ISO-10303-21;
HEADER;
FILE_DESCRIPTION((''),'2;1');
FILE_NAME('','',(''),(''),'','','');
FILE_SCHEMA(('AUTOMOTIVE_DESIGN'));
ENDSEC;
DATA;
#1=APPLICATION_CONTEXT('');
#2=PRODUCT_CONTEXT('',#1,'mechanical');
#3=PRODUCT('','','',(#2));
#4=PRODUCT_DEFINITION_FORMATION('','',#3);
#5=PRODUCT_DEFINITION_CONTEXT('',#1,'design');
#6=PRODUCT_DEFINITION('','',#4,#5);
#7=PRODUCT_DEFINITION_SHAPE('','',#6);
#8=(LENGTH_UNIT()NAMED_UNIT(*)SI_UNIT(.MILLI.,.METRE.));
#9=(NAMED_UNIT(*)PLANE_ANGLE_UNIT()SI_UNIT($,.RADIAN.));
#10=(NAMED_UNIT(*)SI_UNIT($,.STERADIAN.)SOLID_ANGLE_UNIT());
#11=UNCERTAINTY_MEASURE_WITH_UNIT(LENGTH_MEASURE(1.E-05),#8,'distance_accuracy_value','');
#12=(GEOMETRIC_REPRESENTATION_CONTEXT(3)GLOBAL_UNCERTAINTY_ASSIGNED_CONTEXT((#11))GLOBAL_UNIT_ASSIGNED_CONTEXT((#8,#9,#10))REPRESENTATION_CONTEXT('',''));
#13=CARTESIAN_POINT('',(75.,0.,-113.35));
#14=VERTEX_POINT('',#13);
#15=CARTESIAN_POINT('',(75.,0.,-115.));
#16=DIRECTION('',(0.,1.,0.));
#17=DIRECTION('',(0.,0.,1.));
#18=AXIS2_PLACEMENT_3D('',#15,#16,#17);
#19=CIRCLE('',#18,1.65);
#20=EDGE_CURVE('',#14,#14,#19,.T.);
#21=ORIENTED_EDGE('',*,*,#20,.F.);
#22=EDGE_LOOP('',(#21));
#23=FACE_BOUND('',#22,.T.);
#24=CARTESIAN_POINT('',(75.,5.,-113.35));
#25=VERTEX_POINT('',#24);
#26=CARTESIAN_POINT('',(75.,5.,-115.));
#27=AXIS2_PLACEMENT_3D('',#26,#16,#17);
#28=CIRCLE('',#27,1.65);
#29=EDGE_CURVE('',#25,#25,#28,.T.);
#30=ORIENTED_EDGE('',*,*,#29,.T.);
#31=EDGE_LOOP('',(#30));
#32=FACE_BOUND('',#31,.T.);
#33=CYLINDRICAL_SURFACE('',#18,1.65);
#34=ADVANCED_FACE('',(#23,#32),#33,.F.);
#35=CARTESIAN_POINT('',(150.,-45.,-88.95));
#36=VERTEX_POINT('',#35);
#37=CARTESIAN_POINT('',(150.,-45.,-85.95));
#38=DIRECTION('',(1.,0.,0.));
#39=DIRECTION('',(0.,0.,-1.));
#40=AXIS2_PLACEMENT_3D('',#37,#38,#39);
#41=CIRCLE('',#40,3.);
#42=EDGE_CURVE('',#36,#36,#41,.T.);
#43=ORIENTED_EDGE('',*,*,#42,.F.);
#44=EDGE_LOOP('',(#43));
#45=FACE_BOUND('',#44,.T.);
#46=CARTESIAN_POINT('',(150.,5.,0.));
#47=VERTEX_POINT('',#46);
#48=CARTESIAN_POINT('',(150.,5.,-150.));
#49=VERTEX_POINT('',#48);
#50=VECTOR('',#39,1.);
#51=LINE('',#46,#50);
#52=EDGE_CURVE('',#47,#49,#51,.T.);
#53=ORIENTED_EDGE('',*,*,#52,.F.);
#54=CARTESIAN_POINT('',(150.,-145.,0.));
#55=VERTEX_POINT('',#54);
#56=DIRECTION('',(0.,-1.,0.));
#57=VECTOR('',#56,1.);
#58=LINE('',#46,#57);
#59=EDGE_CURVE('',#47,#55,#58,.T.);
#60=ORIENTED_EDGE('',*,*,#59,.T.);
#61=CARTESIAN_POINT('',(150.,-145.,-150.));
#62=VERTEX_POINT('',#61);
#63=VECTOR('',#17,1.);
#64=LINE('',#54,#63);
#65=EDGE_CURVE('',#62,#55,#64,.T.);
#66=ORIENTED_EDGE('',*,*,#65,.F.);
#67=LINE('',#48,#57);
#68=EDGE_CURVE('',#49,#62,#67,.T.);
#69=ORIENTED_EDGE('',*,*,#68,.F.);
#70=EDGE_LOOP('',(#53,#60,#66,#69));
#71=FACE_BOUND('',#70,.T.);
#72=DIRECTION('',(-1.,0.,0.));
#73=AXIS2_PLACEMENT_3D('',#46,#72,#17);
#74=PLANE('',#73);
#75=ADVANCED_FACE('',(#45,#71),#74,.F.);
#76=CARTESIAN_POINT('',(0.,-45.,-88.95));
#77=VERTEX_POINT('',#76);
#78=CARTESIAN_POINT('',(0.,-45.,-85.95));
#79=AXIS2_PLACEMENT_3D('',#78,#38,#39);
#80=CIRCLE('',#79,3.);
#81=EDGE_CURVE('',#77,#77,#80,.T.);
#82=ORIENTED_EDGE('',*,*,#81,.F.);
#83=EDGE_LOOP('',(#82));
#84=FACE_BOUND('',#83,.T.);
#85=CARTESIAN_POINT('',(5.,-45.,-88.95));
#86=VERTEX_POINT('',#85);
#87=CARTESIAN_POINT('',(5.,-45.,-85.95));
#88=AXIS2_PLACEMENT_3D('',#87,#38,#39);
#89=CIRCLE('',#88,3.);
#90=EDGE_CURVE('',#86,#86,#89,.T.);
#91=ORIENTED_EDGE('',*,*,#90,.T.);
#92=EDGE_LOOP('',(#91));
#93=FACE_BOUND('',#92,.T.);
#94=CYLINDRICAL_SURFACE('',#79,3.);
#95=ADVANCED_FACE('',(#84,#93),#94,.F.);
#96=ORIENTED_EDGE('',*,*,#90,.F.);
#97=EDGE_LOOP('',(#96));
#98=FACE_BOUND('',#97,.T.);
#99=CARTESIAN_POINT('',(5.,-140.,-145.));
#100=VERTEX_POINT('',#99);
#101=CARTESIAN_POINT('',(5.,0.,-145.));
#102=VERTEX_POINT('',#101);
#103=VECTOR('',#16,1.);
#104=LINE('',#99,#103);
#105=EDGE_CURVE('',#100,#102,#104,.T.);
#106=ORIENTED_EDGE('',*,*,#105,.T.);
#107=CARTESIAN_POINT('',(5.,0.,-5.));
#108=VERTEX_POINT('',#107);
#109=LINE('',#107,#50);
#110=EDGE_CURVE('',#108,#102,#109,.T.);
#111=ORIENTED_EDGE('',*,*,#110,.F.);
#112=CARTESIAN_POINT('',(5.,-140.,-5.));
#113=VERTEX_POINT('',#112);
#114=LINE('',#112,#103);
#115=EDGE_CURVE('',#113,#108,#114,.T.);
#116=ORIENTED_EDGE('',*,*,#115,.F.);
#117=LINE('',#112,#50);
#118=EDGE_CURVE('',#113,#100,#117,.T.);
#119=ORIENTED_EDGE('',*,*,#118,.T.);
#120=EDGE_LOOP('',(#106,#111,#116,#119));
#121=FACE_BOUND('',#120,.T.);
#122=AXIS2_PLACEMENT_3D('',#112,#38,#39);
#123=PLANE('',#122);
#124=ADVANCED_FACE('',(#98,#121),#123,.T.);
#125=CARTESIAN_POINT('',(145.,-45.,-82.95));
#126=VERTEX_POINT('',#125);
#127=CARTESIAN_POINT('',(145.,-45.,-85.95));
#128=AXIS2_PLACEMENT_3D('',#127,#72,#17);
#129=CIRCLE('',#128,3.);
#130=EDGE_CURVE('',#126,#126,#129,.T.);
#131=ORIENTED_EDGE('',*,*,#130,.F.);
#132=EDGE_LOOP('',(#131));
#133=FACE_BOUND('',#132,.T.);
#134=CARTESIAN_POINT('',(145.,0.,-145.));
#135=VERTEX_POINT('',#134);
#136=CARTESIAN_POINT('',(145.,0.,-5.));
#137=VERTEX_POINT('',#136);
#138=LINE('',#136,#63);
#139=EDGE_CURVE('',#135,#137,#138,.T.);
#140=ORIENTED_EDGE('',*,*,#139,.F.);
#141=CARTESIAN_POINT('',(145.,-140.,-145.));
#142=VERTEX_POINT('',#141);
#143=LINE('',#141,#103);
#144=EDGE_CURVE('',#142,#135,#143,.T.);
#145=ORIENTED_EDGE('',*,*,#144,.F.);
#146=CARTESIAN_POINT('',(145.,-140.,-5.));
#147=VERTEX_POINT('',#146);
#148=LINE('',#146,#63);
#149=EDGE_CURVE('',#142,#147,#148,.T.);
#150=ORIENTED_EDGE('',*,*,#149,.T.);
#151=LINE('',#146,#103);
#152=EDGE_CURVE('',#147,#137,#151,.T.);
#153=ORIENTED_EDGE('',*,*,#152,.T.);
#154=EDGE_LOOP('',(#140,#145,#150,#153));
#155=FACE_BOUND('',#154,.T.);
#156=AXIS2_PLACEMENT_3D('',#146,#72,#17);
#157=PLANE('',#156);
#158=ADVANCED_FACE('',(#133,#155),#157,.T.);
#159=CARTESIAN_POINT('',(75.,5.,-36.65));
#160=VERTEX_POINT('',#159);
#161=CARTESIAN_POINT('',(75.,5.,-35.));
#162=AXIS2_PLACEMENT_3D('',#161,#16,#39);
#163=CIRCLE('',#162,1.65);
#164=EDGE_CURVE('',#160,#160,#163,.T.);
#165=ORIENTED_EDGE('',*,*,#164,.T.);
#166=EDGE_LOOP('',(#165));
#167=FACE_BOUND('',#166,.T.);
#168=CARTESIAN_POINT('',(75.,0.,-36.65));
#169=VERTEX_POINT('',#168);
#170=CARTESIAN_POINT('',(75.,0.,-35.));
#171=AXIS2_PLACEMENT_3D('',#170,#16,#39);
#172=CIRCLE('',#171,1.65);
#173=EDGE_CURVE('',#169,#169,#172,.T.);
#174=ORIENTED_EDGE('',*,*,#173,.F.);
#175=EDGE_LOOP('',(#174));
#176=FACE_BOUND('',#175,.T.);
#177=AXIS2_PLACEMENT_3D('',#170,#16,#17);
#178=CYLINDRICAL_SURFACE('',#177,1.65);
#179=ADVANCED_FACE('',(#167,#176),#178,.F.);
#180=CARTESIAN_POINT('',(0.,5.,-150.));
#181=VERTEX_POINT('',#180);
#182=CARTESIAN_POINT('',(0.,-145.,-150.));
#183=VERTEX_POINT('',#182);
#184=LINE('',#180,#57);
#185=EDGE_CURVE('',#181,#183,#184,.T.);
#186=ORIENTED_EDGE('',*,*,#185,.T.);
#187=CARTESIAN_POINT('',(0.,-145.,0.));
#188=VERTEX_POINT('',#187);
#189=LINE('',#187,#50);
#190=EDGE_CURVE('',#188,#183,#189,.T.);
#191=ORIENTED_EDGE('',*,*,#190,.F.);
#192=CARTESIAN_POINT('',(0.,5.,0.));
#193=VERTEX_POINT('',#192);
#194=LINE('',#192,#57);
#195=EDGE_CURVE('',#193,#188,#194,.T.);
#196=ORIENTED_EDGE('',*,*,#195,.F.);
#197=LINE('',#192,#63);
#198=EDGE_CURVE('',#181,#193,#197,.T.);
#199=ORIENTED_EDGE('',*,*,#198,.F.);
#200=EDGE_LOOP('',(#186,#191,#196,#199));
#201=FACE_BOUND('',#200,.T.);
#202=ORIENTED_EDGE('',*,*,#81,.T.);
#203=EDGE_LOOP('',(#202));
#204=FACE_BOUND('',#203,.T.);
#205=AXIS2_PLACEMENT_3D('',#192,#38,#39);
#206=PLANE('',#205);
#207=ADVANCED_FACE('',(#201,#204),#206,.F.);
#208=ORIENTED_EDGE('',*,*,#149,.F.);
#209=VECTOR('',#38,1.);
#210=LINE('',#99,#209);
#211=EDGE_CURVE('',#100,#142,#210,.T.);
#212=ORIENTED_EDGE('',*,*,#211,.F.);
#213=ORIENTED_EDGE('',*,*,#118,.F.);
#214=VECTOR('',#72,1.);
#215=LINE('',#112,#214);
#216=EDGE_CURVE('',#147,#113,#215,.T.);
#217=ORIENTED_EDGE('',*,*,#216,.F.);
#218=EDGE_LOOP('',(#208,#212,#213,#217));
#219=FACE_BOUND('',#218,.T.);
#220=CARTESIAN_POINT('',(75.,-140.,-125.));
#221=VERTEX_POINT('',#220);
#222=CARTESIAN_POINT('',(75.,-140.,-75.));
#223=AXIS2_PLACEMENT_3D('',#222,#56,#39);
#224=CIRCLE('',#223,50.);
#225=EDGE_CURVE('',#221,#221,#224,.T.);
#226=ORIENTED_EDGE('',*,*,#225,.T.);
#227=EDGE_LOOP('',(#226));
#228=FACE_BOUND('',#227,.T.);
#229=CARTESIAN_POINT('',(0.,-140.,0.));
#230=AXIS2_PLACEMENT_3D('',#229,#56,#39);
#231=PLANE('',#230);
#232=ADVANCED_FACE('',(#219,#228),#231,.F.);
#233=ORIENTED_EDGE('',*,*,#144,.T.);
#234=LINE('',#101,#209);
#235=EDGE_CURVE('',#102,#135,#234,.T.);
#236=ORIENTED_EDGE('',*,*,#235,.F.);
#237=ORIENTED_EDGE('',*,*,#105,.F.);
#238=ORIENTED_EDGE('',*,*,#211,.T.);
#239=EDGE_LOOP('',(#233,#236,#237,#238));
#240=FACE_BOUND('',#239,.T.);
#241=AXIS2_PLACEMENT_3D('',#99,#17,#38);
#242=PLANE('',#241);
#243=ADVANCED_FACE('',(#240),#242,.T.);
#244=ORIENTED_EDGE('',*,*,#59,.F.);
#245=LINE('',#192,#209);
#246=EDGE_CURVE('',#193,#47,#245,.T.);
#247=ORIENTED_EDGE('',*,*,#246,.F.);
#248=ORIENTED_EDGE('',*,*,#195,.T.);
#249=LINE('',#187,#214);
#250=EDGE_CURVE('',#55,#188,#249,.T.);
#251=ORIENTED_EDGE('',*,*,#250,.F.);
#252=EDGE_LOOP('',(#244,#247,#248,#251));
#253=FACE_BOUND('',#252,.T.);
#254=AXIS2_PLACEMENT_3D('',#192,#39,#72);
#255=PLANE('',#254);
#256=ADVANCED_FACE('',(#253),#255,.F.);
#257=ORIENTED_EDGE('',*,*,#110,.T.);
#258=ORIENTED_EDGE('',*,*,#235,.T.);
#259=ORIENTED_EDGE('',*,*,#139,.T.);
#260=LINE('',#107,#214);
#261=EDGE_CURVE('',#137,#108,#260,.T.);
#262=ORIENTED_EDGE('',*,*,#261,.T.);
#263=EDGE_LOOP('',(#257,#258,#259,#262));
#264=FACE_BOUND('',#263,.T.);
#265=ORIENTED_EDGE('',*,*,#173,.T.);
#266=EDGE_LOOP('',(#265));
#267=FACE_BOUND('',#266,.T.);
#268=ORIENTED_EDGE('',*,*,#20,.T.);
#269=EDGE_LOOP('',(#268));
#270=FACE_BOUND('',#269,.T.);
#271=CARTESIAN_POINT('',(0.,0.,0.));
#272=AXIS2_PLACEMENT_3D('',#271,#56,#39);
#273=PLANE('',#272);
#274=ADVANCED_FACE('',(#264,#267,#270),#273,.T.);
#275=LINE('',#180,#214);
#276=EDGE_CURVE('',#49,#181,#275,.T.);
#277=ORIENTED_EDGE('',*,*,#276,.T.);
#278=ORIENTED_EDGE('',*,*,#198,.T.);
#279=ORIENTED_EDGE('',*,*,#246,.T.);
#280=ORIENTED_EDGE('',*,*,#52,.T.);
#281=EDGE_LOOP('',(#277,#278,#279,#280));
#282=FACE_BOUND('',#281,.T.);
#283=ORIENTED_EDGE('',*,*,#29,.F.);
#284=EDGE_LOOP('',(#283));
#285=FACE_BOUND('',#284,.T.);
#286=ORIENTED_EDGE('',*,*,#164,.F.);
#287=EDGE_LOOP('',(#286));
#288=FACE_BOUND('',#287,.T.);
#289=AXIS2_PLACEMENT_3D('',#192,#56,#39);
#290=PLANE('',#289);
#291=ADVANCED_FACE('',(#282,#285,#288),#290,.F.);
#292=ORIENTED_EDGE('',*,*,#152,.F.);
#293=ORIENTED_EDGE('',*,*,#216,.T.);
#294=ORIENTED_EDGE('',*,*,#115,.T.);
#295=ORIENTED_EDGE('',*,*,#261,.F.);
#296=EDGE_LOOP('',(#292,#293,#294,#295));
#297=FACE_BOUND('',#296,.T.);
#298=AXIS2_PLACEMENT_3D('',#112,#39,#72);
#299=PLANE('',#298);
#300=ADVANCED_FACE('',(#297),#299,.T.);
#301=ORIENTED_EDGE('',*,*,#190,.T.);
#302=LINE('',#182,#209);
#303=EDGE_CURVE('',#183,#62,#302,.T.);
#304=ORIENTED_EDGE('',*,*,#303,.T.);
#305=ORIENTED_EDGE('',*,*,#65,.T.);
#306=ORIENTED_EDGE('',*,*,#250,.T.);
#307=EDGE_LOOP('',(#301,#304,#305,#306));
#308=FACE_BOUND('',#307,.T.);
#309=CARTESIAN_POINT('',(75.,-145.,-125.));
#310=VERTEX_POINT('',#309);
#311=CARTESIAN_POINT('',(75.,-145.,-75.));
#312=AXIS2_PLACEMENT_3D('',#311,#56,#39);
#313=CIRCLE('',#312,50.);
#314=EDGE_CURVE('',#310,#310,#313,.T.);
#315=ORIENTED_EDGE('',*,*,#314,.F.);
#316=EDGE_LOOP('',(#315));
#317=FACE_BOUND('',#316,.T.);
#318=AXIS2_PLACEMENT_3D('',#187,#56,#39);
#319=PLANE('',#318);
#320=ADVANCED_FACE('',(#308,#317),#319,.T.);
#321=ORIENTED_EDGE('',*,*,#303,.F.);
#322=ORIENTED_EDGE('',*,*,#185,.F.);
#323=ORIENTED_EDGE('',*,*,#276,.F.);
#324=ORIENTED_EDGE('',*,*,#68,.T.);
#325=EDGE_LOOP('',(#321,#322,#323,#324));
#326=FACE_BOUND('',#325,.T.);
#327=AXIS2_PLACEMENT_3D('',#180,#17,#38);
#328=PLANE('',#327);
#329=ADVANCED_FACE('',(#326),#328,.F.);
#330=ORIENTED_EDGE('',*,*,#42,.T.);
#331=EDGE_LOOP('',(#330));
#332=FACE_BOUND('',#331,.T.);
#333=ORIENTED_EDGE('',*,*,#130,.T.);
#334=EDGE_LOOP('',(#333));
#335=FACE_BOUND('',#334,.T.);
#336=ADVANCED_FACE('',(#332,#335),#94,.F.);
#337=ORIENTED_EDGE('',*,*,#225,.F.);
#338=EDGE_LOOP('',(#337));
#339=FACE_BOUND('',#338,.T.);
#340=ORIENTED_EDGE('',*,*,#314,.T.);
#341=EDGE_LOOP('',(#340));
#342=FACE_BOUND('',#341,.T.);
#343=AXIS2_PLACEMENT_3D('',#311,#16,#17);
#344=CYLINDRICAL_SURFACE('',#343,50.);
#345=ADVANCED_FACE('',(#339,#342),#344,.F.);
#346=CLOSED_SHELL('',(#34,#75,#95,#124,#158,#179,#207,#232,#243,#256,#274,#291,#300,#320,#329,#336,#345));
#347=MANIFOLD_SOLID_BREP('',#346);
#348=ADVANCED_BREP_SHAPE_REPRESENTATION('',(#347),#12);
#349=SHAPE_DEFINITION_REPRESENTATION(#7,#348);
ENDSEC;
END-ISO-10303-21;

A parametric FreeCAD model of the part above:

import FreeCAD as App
import Part
import Sketcher

V = App.Vector
Q = App.Units.Quantity

doc = App.newDocument("Part")
body = doc.addObject("PartDesign::Body", "Body")

sketch1 = body.newObject("Sketcher::SketchObject", "Sketch")
sketch1.AttachmentSupport = (doc.getObject("XZ_Plane"), [""])
sketch1.MapMode = "FlatFace"
sketch1.addGeometry([
    Part.LineSegment(V(0, -150, 0), V(0, 0, 0)),
    Part.LineSegment(V(0, 0, 0), V(150, 0, 0)),
    Part.LineSegment(V(150, 0, 0), V(150, -150, 0)),
    Part.LineSegment(V(150, -150, 0), V(0, -150, 0)),
], False)
sketch1.addConstraint([
    Sketcher.Constraint("Coincident", 0, 2, 1, 1),
    Sketcher.Constraint("Coincident", 1, 2, 2, 1),
    Sketcher.Constraint("Coincident", 2, 2, 3, 1),
    Sketcher.Constraint("Coincident", 3, 2, 0, 1),
    Sketcher.Constraint("Vertical", 0),
    Sketcher.Constraint("Horizontal", 1),
    Sketcher.Constraint("Vertical", 2),
    Sketcher.Constraint("Horizontal", 3),
    Sketcher.Constraint("Coincident", 0, 2, -1, 1),
    Sketcher.Constraint("Equal", 3, 0),
    Sketcher.Constraint("DistanceX", 1, 1, 1, 2, Q("150 mm")),
])
pad1 = body.newObject("PartDesign::Pad", "Pad")
pad1.Profile = sketch1
pad1.Length = 5
pad1.Reversed = True

sketch2 = body.newObject("Sketcher::SketchObject", "Sketch001")
sketch2.AttachmentSupport = (doc.getObject("XZ_Plane"), [""])
sketch2.MapMode = "FlatFace"
sketch2.addGeometry([
    Part.LineSegment(V(0, 0, 0), V(0, -150, 0)),
    Part.LineSegment(V(0, -150, 0), V(150, -150, 0)),
    Part.LineSegment(V(150, -150, 0), V(150, 0, 0)),
    Part.LineSegment(V(150, 0, 0), V(0, 0, 0)),
    Part.LineSegment(V(145, -145, 0), V(5, -145, 0)),
    Part.LineSegment(V(5, -145, 0), V(5, -5, 0)),
    Part.LineSegment(V(5, -5, 0), V(145, -5, 0)),
    Part.LineSegment(V(145, -5, 0), V(145, -145, 0)),
], False)
sketch2.addConstraint([
    Sketcher.Constraint("Coincident", 0, 2, 1, 1),
    Sketcher.Constraint("Coincident", 1, 2, 2, 1),
    Sketcher.Constraint("Coincident", 2, 2, 3, 1),
    Sketcher.Constraint("Coincident", 3, 2, 0, 1),
    Sketcher.Constraint("Coincident", 4, 2, 5, 1),
    Sketcher.Constraint("Coincident", 5, 2, 6, 1),
    Sketcher.Constraint("Coincident", 6, 2, 7, 1),
    Sketcher.Constraint("Coincident", 7, 2, 4, 1),
    Sketcher.Constraint("Vertical", 0),
    Sketcher.Constraint("Horizontal", 1),
    Sketcher.Constraint("Vertical", 2),
    Sketcher.Constraint("Horizontal", 3),
    Sketcher.Constraint("Horizontal", 4),
    Sketcher.Constraint("Vertical", 5),
    Sketcher.Constraint("Horizontal", 6),
    Sketcher.Constraint("Vertical", 7),
    Sketcher.Constraint("Coincident", 3, 2, -1, 1),
    Sketcher.Constraint("Equal", 3, 0),
    Sketcher.Constraint("Equal", 6, 5),
    Sketcher.Constraint("DistanceX", 1, 1, 1, 2, Q("150 mm")),
    Sketcher.Constraint("DistanceX", 4, 2, 4, 1, Q("140 mm")),
    Sketcher.Constraint("DistanceX", -1, 1, 4, 2, Q("5 mm")),
    Sketcher.Constraint("DistanceY", 4, 2, -1, 1, Q("145 mm")),
])
pad2 = body.newObject("PartDesign::Pad", "Pad001")
pad2.Profile = sketch2
pad2.Length = 140

sketch3 = body.newObject("Sketcher::SketchObject", "Sketch002")
sketch3.AttachmentSupport = (doc.getObject("XZ_Plane"), [""])
sketch3.MapMode = "FlatFace"
sketch3.AttachmentOffset = App.Placement(V(0, 0, -5), App.Rotation())
sketch3.addGeometry([
    Part.Circle(V(75, -115, 0), V(0, 0, 1), 1.6),
    Part.Circle(V(75, -35, 0), V(0, 0, 1), 1.6),
], False)
sketch3.addConstraint([
    Sketcher.Constraint("Equal", 0, 1),
    Sketcher.Constraint("Vertical", 0, 3, 1, 3),
    Sketcher.Constraint("Diameter", 0, Q("3.3 mm")),
    Sketcher.Constraint("DistanceX", -1, 1, 0, 3, Q("75 mm")),
    Sketcher.Constraint("DistanceY", 0, 3, -1, 1, Q("115 mm")),
    Sketcher.Constraint("DistanceY", 1, 3, -1, 1, Q("35 mm")),
])
pocket1 = body.newObject("PartDesign::Pocket", "Pocket")
pocket1.Profile = sketch3
pocket1.Length = 5
pocket1.Reversed = True

sketch4 = body.newObject("Sketcher::SketchObject", "Sketch003")
sketch4.AttachmentSupport = (doc.getObject("XZ_Plane"), [""])
sketch4.MapMode = "FlatFace"
sketch4.AttachmentOffset = App.Placement(V(0, 0, 140), App.Rotation())
sketch4.addGeometry([
    Part.LineSegment(V(0, 0, 0), V(0, -150, 0)),
    Part.LineSegment(V(0, -150, 0), V(150, -150, 0)),
    Part.LineSegment(V(150, -150, 0), V(150, 0, 0)),
    Part.LineSegment(V(150, 0, 0), V(0, 0, 0)),
    Part.Circle(V(75, -75, 0), V(0, 0, 1), 50),
], False)
sketch4.addConstraint([
    Sketcher.Constraint("Coincident", 0, 2, 1, 1),
    Sketcher.Constraint("Coincident", 1, 2, 2, 1),
    Sketcher.Constraint("Coincident", 2, 2, 3, 1),
    Sketcher.Constraint("Coincident", 3, 2, 0, 1),
    Sketcher.Constraint("Vertical", 0),
    Sketcher.Constraint("Horizontal", 1),
    Sketcher.Constraint("Vertical", 2),
    Sketcher.Constraint("Horizontal", 3),
    Sketcher.Constraint("Coincident", 3, 2, -1, 1),
    Sketcher.Constraint("Equal", 3, 0),
    Sketcher.Constraint("Diameter", 4, Q("100 mm")),
    Sketcher.Constraint("DistanceX", 1, 1, 1, 2, Q("150 mm")),
    Sketcher.Constraint("DistanceX", -1, 1, 4, 3, Q("75 mm")),
    Sketcher.Constraint("DistanceY", 4, 3, -1, 1, Q("75 mm")),
])
pad3 = body.newObject("PartDesign::Pad", "Pad002")
pad3.Profile = sketch4
pad3.Length = 5

sketch5 = body.newObject("Sketcher::SketchObject", "Sketch004")
sketch5.AttachmentSupport = (doc.getObject("YZ_Plane"), [""])
sketch5.MapMode = "FlatFace"
sketch5.AttachmentOffset = App.Placement(V(0, 0, 150), App.Rotation())
sketch5.addGeometry(Part.Circle(V(-45, -86, 0), V(0, 0, 1), 3), False)
sketch5.addConstraint([
    Sketcher.Constraint("Diameter", 0, Q("6 mm")),
    Sketcher.Constraint("DistanceX", 0, 3, -1, 1, Q("45 mm")),
    Sketcher.Constraint("DistanceY", 0, 3, -1, 1, Q("85.95 mm")),
])
pocket2 = body.newObject("PartDesign::Pocket", "Pocket001")
pocket2.Profile = sketch5
pocket2.Type = "ThroughAll"

doc.recompute()
